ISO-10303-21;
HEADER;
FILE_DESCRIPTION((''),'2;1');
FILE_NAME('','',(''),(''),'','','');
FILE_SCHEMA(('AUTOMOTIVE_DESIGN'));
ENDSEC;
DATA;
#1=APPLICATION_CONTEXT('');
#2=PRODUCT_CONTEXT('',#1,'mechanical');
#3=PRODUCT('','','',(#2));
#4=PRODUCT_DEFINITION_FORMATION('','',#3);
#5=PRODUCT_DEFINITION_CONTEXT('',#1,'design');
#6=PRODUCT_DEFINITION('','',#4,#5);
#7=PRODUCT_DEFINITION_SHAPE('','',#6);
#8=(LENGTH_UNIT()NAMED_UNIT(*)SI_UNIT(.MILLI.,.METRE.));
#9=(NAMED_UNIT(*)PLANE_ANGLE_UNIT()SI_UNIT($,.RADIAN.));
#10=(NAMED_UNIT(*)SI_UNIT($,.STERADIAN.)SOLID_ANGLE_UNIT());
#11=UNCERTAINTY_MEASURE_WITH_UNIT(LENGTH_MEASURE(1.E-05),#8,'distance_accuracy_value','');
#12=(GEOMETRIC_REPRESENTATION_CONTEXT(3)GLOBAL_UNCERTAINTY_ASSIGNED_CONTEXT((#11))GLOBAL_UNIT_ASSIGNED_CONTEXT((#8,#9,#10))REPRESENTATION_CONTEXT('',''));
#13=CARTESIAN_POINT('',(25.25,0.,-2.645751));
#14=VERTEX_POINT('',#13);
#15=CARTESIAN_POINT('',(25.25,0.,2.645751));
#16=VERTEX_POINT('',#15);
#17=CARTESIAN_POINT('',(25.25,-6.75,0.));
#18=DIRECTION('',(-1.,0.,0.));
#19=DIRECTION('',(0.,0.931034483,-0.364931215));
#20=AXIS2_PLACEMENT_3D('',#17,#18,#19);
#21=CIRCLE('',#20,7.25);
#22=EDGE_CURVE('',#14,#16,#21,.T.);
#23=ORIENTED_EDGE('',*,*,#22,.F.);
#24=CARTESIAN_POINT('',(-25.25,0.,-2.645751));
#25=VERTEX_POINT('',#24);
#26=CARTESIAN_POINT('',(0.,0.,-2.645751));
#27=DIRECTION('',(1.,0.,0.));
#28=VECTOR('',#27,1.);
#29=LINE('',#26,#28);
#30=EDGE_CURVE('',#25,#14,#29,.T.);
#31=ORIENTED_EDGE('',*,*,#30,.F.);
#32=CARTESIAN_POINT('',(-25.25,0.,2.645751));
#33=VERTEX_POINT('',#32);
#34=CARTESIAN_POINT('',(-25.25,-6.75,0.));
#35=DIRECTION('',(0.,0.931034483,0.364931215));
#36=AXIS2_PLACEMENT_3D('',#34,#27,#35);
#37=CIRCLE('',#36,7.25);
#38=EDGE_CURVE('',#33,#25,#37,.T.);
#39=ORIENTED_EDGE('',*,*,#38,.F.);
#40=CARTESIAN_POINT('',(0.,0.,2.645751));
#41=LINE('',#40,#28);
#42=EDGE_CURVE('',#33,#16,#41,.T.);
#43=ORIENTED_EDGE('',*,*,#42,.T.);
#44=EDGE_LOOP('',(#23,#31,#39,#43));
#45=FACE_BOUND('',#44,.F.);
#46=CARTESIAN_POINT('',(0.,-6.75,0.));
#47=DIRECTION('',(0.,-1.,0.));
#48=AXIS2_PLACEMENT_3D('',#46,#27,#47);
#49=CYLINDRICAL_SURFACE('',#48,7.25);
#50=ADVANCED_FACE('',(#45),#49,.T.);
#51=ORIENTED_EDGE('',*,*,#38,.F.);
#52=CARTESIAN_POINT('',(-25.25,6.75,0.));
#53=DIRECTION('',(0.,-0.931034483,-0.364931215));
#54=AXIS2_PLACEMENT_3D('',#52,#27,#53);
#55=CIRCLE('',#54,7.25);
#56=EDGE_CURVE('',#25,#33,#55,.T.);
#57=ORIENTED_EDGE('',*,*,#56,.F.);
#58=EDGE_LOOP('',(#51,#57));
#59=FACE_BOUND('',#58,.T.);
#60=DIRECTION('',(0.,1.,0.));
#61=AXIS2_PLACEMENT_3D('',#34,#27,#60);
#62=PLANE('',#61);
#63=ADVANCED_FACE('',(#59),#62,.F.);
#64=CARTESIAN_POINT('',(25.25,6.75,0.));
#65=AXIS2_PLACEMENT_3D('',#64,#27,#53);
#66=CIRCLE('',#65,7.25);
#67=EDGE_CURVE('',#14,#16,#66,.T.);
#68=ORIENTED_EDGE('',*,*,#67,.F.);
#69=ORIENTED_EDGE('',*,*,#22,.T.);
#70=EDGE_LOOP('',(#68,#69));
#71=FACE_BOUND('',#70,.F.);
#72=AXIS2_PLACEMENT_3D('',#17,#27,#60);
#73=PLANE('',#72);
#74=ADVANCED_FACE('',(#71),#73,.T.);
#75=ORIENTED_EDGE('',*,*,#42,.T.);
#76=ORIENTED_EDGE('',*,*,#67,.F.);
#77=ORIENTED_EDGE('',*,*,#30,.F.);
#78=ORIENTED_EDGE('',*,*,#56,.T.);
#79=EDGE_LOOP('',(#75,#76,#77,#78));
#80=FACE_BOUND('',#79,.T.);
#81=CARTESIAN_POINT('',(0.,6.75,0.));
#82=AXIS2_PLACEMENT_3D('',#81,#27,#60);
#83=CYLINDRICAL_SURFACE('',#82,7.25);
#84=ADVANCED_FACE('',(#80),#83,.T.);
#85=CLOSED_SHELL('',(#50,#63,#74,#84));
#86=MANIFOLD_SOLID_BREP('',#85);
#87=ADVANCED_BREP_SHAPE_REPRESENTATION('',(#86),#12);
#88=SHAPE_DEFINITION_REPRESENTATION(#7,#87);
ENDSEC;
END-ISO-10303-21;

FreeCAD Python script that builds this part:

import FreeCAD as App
import Part
import Sketcher
from FreeCAD import Vector

doc = App.newDocument("Part")
body = doc.addObject("PartDesign::Body", "Body")

# Sketch on YZ plane
sketch1 = body.newObject("Sketcher::SketchObject", "Sketch")
sketch1.AttachmentSupport = (doc.getObject("YZ_Plane"), [""])
sketch1.MapMode = "FlatFace"
sketch1.addGeometry(Part.Circle(Vector(7, 0, 0), Vector(0, 0, 1), 7), False)
sketch1.addConstraint(Sketcher.Constraint("PointOnObject", 0, 3, -1))
sketch1.addConstraint(Sketcher.Constraint("Diameter", 0, 14.5))
sketch1.addConstraint(Sketcher.Constraint("DistanceX", -1, 1, 0, 3, 6.75))
pad1 = body.newObject("PartDesign::Pad", "Pad")
pad1.Profile = sketch1
pad1.Length = 50.5
pad1.Midplane = True
body2 = doc.addObject("PartDesign::Body", "Body001")
doc.recompute()

body2.BaseFeature = body
doc.recompute()

mirroring = doc.addObject("Part::Mirroring", "Mirroring")
mirroring.Source = body
mirroring.Base = Vector(0, 0, 0)
mirroring.Normal = Vector(0, -1, 0)
body3 = doc.addObject("PartDesign::Body", "Body002")
body3.BaseFeature = mirroring
boolean = body2.newObject("PartDesign::Boolean", "Boolean")
boolean.Type = "Fuse"
boolean.addObjects([body3])
doc.recompute()
body4 = doc.addObject("PartDesign::Body", "Body003")

# Sketch on XY plane
sketch2 = body4.newObject("Sketcher::SketchObject", "Sketch001")
sketch2.AttachmentSupport = (doc.getObject("XY_Plane003"), [""])
sketch2.MapMode = "FlatFace"
sketch2.addGeometry(Part.Circle(Vector(0, 0, 0), Vector(0, 0, 1), 11), False)
sketch2.addGeometry(Part.Circle(Vector(0, 0, 0), Vector(0, 0, 1), 6), False)
sketch2.addConstraint(Sketcher.Constraint("Coincident", 0, 3, -1, 1))
sketch2.addConstraint(Sketcher.Constraint("Coincident", 1, 3, -1, 1))
sketch2.addConstraint(Sketcher.Constraint("Diameter", 0, 22.0))
sketch2.addConstraint(Sketcher.Constraint("Diameter", 1, 12.7))
pad2 = body4.newObject("PartDesign::Pad", "Pad001")
pad2.Profile = sketch2
pad2.Length = 14.5
pad2.Midplane = True
body4.Visibility = False
mirroring.Visibility = False

doc.recompute()
